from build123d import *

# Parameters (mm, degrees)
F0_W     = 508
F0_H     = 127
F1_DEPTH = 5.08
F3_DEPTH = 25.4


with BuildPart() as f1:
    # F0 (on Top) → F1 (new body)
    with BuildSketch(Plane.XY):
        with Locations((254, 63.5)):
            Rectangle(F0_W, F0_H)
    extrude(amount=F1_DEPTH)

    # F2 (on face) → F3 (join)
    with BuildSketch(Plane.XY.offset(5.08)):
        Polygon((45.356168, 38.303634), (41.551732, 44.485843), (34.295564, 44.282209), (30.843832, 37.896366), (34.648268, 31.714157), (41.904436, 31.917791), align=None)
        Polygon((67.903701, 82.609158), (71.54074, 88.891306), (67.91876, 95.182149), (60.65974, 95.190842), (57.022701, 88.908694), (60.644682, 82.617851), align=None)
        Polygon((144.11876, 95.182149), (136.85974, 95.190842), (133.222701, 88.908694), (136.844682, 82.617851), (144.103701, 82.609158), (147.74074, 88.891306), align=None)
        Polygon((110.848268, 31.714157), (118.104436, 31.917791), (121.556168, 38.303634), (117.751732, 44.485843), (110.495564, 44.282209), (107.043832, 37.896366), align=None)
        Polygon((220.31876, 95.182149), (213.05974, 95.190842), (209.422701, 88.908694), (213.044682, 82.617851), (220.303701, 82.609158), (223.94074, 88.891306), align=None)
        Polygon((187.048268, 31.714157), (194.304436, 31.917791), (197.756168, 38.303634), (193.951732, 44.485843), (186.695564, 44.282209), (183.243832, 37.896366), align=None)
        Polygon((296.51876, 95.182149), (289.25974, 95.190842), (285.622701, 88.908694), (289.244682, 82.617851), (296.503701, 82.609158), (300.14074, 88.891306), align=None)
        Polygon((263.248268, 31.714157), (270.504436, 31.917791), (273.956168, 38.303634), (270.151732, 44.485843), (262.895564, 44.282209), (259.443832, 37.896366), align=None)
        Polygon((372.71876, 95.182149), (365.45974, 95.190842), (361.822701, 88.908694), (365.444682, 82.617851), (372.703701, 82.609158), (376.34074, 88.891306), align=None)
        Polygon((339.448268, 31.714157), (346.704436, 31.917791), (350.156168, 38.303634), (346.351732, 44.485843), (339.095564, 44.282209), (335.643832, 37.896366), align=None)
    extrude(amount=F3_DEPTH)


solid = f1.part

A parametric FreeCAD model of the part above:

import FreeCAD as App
import Part
import Sketcher
Q = App.Units.Quantity

doc = App.newDocument("Part")
body = doc.addObject("PartDesign::Body", "Body")

# Sketch on XY plane
sketch1 = doc.addObject("Sketcher::SketchObject", "Sketch")
body.addObject(sketch1)
sketch1.AttachmentSupport = (doc.XY_Plane, [""])
sketch1.MapMode = "FlatFace"
sketch1.addGeometry(Part.LineSegment(App.Vector(0, 127, 0), App.Vector(0, 0, 0)), False)
sketch1.addGeometry(Part.LineSegment(App.Vector(0, 0, 0), App.Vector(508, 0, 0)), False)
sketch1.addGeometry(Part.LineSegment(App.Vector(508, 0, 0), App.Vector(508, 127, 0)), False)
sketch1.addGeometry(Part.LineSegment(App.Vector(508, 127, 0), App.Vector(0, 127, 0)), False)
sketch1.addConstraint(Sketcher.Constraint("Coincident", 0, 2, 1, 1))
sketch1.addConstraint(Sketcher.Constraint("Coincident", 1, 2, 2, 1))
sketch1.addConstraint(Sketcher.Constraint("Coincident", 2, 2, 3, 1))
sketch1.addConstraint(Sketcher.Constraint("Coincident", 3, 2, 0, 1))
sketch1.addConstraint(Sketcher.Constraint("Vertical", 0))
sketch1.addConstraint(Sketcher.Constraint("Horizontal", 1))
sketch1.addConstraint(Sketcher.Constraint("Vertical", 2))
sketch1.addConstraint(Sketcher.Constraint("Horizontal", 3))
sketch1.addConstraint(Sketcher.Constraint("Coincident", 0, 2, -1, 1))
sketch1.addConstraint(Sketcher.Constraint("DistanceX", 1, 1, 1, 2, Q("20 in")))
sketch1.addConstraint(Sketcher.Constraint("DistanceY", 0, 2, 0, 1, Q("5 in")))
pad1 = doc.addObject("PartDesign::Pad", "Pad")
body.addObject(pad1)
pad1.Profile = sketch1
pad1.Length = Q("0.2 in")

# Sketch on XY plane
sketch2 = doc.addObject("Sketcher::SketchObject", "Sketch001")
body.addObject(sketch2)
sketch2.AttachmentSupport = (doc.XY_Plane, [""])
sketch2.MapMode = "FlatFace"
sketch2.AttachmentOffset = App.Placement(App.Vector(0, 0, 0.2 * 25.4), App.Rotation())
sketch2.addGeometry(Part.LineSegment(App.Vector(45.356168, 38.303634, 0), App.Vector(41.551732, 44.485843, 0)), False)
sketch2.addGeometry(Part.LineSegment(App.Vector(41.551732, 44.485843, 0), App.Vector(34.295564, 44.282209, 0)), False)
sketch2.addGeometry(Part.LineSegment(App.Vector(34.295564, 44.282209, 0), App.Vector(30.843832, 37.896366, 0)), False)
sketch2.addGeometry(Part.LineSegment(App.Vector(30.843832, 37.896366, 0), App.Vector(34.648268, 31.714157, 0)), False)
sketch2.addGeometry(Part.LineSegment(App.Vector(34.648268, 31.714157, 0), App.Vector(41.904436, 31.917791, 0)), False)
sketch2.addGeometry(Part.LineSegment(App.Vector(41.904436, 31.917791, 0), App.Vector(45.356168, 38.303634, 0)), False)
sketch2.addGeometry(Part.LineSegment(App.Vector(67.903701, 82.609158, 0), App.Vector(71.54074, 88.891306, 0)), False)
sketch2.addGeometry(Part.LineSegment(App.Vector(71.54074, 88.891306, 0), App.Vector(67.91876, 95.182149, 0)), False)
sketch2.addGeometry(Part.LineSegment(App.Vector(67.91876, 95.182149, 0), App.Vector(60.65974, 95.190842, 0)), False)
sketch2.addGeometry(Part.LineSegment(App.Vector(60.65974, 95.190842, 0), App.Vector(57.022701, 88.908694, 0)), False)
sketch2.addGeometry(Part.LineSegment(App.Vector(57.022701, 88.908694, 0), App.Vector(60.644682, 82.617851, 0)), False)
sketch2.addGeometry(Part.LineSegment(App.Vector(60.644682, 82.617851, 0), App.Vector(67.903701, 82.609158, 0)), False)
sketch2.addGeometry(Part.LineSegment(App.Vector(144.11876, 95.182149, 0), App.Vector(136.85974, 95.190842, 0)), False)
sketch2.addGeometry(Part.LineSegment(App.Vector(136.85974, 95.190842, 0), App.Vector(133.222701, 88.908694, 0)), False)
sketch2.addGeometry(Part.LineSegment(App.Vector(133.222701, 88.908694, 0), App.Vector(136.844682, 82.617851, 0)), False)
sketch2.addGeometry(Part.LineSegment(App.Vector(136.844682, 82.617851, 0), App.Vector(144.103701, 82.609158, 0)), False)
sketch2.addGeometry(Part.LineSegment(App.Vector(144.103701, 82.609158, 0), App.Vector(147.74074, 88.891306, 0)), False)
sketch2.addGeometry(Part.LineSegment(App.Vector(147.74074, 88.891306, 0), App.Vector(144.11876, 95.182149, 0)), False)
sketch2.addGeometry(Part.LineSegment(App.Vector(110.848268, 31.714157, 0), App.Vector(118.104436, 31.917791, 0)), False)
sketch2.addGeometry(Part.LineSegment(App.Vector(118.104436, 31.917791, 0), App.Vector(121.556168, 38.303634, 0)), False)
sketch2.addGeometry(Part.LineSegment(App.Vector(121.556168, 38.303634, 0), App.Vector(117.751732, 44.485843, 0)), False)
sketch2.addGeometry(Part.LineSegment(App.Vector(117.751732, 44.485843, 0), App.Vector(110.495564, 44.282209, 0)), False)
sketch2.addGeometry(Part.LineSegment(App.Vector(110.495564, 44.282209, 0), App.Vector(107.043832, 37.896366, 0)), False)
sketch2.addGeometry(Part.LineSegment(App.Vector(107.043832, 37.896366, 0), App.Vector(110.848268, 31.714157, 0)), False)
sketch2.addGeometry(Part.LineSegment(App.Vector(220.31876, 95.182149, 0), App.Vector(213.05974, 95.190842, 0)), False)
sketch2.addGeometry(Part.LineSegment(App.Vector(213.05974, 95.190842, 0), App.Vector(209.422701, 88.908694, 0)), False)
sketch2.addGeometry(Part.LineSegment(App.Vector(209.422701, 88.908694, 0), App.Vector(213.044682, 82.617851, 0)), False)
sketch2.addGeometry(Part.LineSegment(App.Vector(213.044682, 82.617851, 0), App.Vector(220.303701, 82.609158, 0)), False)
sketch2.addGeometry(Part.LineSegment(App.Vector(220.303701, 82.609158, 0), App.Vector(223.94074, 88.891306, 0)), False)
sketch2.addGeometry(Part.LineSegment(App.Vector(223.94074, 88.891306, 0), App.Vector(220.31876, 95.182149, 0)), False)
sketch2.addGeometry(Part.LineSegment(App.Vector(187.048268, 31.714157, 0), App.Vector(194.304436, 31.917791, 0)), False)
sketch2.addGeometry(Part.LineSegment(App.Vector(194.304436, 31.917791, 0), App.Vector(197.756168, 38.303634, 0)), False)
sketch2.addGeometry(Part.LineSegment(App.Vector(197.756168, 38.303634, 0), App.Vector(193.951732, 44.485843, 0)), False)
sketch2.addGeometry(Part.LineSegment(App.Vector(193.951732, 44.485843, 0), App.Vector(186.695564, 44.282209, 0)), False)
sketch2.addGeometry(Part.LineSegment(App.Vector(186.695564, 44.282209, 0), App.Vector(183.243832, 37.896366, 0)), False)
sketch2.addGeometry(Part.LineSegment(App.Vector(183.243832, 37.896366, 0), App.Vector(187.048268, 31.714157, 0)), False)
sketch2.addGeometry(Part.LineSegment(App.Vector(296.51876, 95.182149, 0), App.Vector(289.25974, 95.190842, 0)), False)
sketch2.addGeometry(Part.LineSegment(App.Vector(289.25974, 95.190842, 0), App.Vector(285.622701, 88.908694, 0)), False)
sketch2.addGeometry(Part.LineSegment(App.Vector(285.622701, 88.908694, 0), App.Vector(289.244682, 82.617851, 0)), False)
sketch2.addGeometry(Part.LineSegment(App.Vector(289.244682, 82.617851, 0), App.Vector(296.503701, 82.609158, 0)), False)
sketch2.addGeometry(Part.LineSegment(App.Vector(296.503701, 82.609158, 0), App.Vector(300.14074, 88.891306, 0)), False)
sketch2.addGeometry(Part.LineSegment(App.Vector(300.14074, 88.891306, 0), App.Vector(296.51876, 95.182149, 0)), False)
sketch2.addGeometry(Part.LineSegment(App.Vector(263.248268, 31.714157, 0), App.Vector(270.504436, 31.917791, 0)), False)
sketch2.addGeometry(Part.LineSegment(App.Vector(270.504436, 31.917791, 0), App.Vector(273.956168, 38.303634, 0)), False)
sketch2.addGeometry(Part.LineSegment(App.Vector(273.956168, 38.303634, 0), App.Vector(270.151732, 44.485843, 0)), False)
sketch2.addGeometry(Part.LineSegment(App.Vector(270.151732, 44.485843, 0), App.Vector(262.895564, 44.282209, 0)), False)
sketch2.addGeometry(Part.LineSegment(App.Vector(262.895564, 44.282209, 0), App.Vector(259.443832, 37.896366, 0)), False)
sketch2.addGeometry(Part.LineSegment(App.Vector(259.443832, 37.896366, 0), App.Vector(263.248268, 31.714157, 0)), False)
sketch2.addGeometry(Part.LineSegment(App.Vector(372.71876, 95.182149, 0), App.Vector(365.45974, 95.190842, 0)), False)
sketch2.addGeometry(Part.LineSegment(App.Vector(365.45974, 95.190842, 0), App.Vector(361.822701, 88.908694, 0)), False)
sketch2.addGeometry(Part.LineSegment(App.Vector(361.822701, 88.908694, 0), App.Vector(365.444682, 82.617851, 0)), False)
sketch2.addGeometry(Part.LineSegment(App.Vector(365.444682, 82.617851, 0), App.Vector(372.703701, 82.609158, 0)), False)
sketch2.addGeometry(Part.LineSegment(App.Vector(372.703701, 82.609158, 0), App.Vector(376.34074, 88.891306, 0)), False)
sketch2.addGeometry(Part.LineSegment(App.Vector(376.34074, 88.891306, 0), App.Vector(372.71876, 95.182149, 0)), False)
sketch2.addGeometry(Part.LineSegment(App.Vector(339.448268, 31.714157, 0), App.Vector(346.704436, 31.917791, 0)), False)
sketch2.addGeometry(Part.LineSegment(App.Vector(346.704436, 31.917791, 0), App.Vector(350.156168, 38.303634, 0)), False)
sketch2.addGeometry(Part.LineSegment(App.Vector(350.156168, 38.303634, 0), App.Vector(346.351732, 44.485843, 0)), False)
sketch2.addGeometry(Part.LineSegment(App.Vector(346.351732, 44.485843, 0), App.Vector(339.095564, 44.282209, 0)), False)
sketch2.addGeometry(Part.LineSegment(App.Vector(339.095564, 44.282209, 0), App.Vector(335.643832, 37.896366, 0)), False)
sketch2.addGeometry(Part.LineSegment(App.Vector(335.643832, 37.896366, 0), App.Vector(339.448268, 31.714157, 0)), False)
sketch2.addConstraint(Sketcher.Constraint("Coincident", 0, 2, 1, 1))
sketch2.addConstraint(Sketcher.Constraint("Coincident", 1, 2, 2, 1))
sketch2.addConstraint(Sketcher.Constraint("Coincident", 2, 2, 3, 1))
sketch2.addConstraint(Sketcher.Constraint("Coincident", 3, 2, 4, 1))
sketch2.addConstraint(Sketcher.Constraint("Coincident", 4, 2, 5, 1))
sketch2.addConstraint(Sketcher.Constraint("Coincident", 5, 2, 0, 1))
sketch2.addConstraint(Sketcher.Constraint("Coincident", 6, 2, 7, 1))
sketch2.addConstraint(Sketcher.Constraint("Coincident", 7, 2, 8, 1))
sketch2.addConstraint(Sketcher.Constraint("Coincident", 8, 2, 9, 1))
sketch2.addConstraint(Sketcher.Constraint("Coincident", 9, 2, 10, 1))
sketch2.addConstraint(Sketcher.Constraint("Coincident", 10, 2, 11, 1))
sketch2.addConstraint(Sketcher.Constraint("Coincident", 11, 2, 6, 1))
sketch2.addConstraint(Sketcher.Constraint("Coincident", 12, 2, 13, 1))
sketch2.addConstraint(Sketcher.Constraint("Coincident", 13, 2, 14, 1))
sketch2.addConstraint(Sketcher.Constraint("Coincident", 14, 2, 15, 1))
sketch2.addConstraint(Sketcher.Constraint("Coincident", 15, 2, 16, 1))
sketch2.addConstraint(Sketcher.Constraint("Coincident", 16, 2, 17, 1))
sketch2.addConstraint(Sketcher.Constraint("Coincident", 17, 2, 12, 1))
sketch2.addConstraint(Sketcher.Constraint("Coincident", 18, 2, 19, 1))
sketch2.addConstraint(Sketcher.Constraint("Coincident", 19, 2, 20, 1))
sketch2.addConstraint(Sketcher.Constraint("Coincident", 20, 2, 21, 1))
sketch2.addConstraint(Sketcher.Constraint("Coincident", 21, 2, 22, 1))
sketch2.addConstraint(Sketcher.Constraint("Coincident", 22, 2, 23, 1))
sketch2.addConstraint(Sketcher.Constraint("Coincident", 23, 2, 18, 1))
sketch2.addConstraint(Sketcher.Constraint("Coincident", 24, 2, 25, 1))
sketch2.addConstraint(Sketcher.Constraint("Coincident", 25, 2, 26, 1))
sketch2.addConstraint(Sketcher.Constraint("Coincident", 26, 2, 27, 1))
sketch2.addConstraint(Sketcher.Constraint("Coincident", 27, 2, 28, 1))
sketch2.addConstraint(Sketcher.Constraint("Coincident", 28, 2, 29, 1))
sketch2.addConstraint(Sketcher.Constraint("Coincident", 29, 2, 24, 1))
sketch2.addConstraint(Sketcher.Constraint("Coincident", 30, 2, 31, 1))
sketch2.addConstraint(Sketcher.Constraint("Coincident", 31, 2, 32, 1))
sketch2.addConstraint(Sketcher.Constraint("Coincident", 32, 2, 33, 1))
sketch2.addConstraint(Sketcher.Constraint("Coincident", 33, 2, 34, 1))
sketch2.addConstraint(Sketcher.Constraint("Coincident", 34, 2, 35, 1))
sketch2.addConstraint(Sketcher.Constraint("Coincident", 35, 2, 30, 1))
sketch2.addConstraint(Sketcher.Constraint("Coincident", 36, 2, 37, 1))
sketch2.addConstraint(Sketcher.Constraint("Coincident", 37, 2, 38, 1))
sketch2.addConstraint(Sketcher.Constraint("Coincident", 38, 2, 39, 1))
sketch2.addConstraint(Sketcher.Constraint("Coincident", 39, 2, 40, 1))
sketch2.addConstraint(Sketcher.Constraint("Coincident", 40, 2, 41, 1))
sketch2.addConstraint(Sketcher.Constraint("Coincident", 41, 2, 36, 1))
sketch2.addConstraint(Sketcher.Constraint("Coincident", 42, 2, 43, 1))
sketch2.addConstraint(Sketcher.Constraint("Coincident", 43, 2, 44, 1))
sketch2.addConstraint(Sketcher.Constraint("Coincident", 44, 2, 45, 1))
sketch2.addConstraint(Sketcher.Constraint("Coincident", 45, 2, 46, 1))
sketch2.addConstraint(Sketcher.Constraint("Coincident", 46, 2, 47, 1))
sketch2.addConstraint(Sketcher.Constraint("Coincident", 47, 2, 42, 1))
sketch2.addConstraint(Sketcher.Constraint("Coincident", 48, 2, 49, 1))
sketch2.addConstraint(Sketcher.Constraint("Coincident", 49, 2, 50, 1))
sketch2.addConstraint(Sketcher.Constraint("Coincident", 50, 2, 51, 1))
sketch2.addConstraint(Sketcher.Constraint("Coincident", 51, 2, 52, 1))
sketch2.addConstraint(Sketcher.Constraint("Coincident", 52, 2, 53, 1))
sketch2.addConstraint(Sketcher.Constraint("Coincident", 53, 2, 48, 1))
sketch2.addConstraint(Sketcher.Constraint("Coincident", 54, 2, 55, 1))
sketch2.addConstraint(Sketcher.Constraint("Coincident", 55, 2, 56, 1))
sketch2.addConstraint(Sketcher.Constraint("Coincident", 56, 2, 57, 1))
sketch2.addConstraint(Sketcher.Constraint("Coincident", 57, 2, 58, 1))
sketch2.addConstraint(Sketcher.Constraint("Coincident", 58, 2, 59, 1))
sketch2.addConstraint(Sketcher.Constraint("Coincident", 59, 2, 54, 1))
sketch2.addConstraint(Sketcher.Constraint("Parallel", 0, 3))
sketch2.addConstraint(Sketcher.Constraint("Parallel", 1, 4))
sketch2.addConstraint(Sketcher.Constraint("Parallel", 2, 5))
sketch2.addConstraint(Sketcher.Constraint("Parallel", 6, 9))
sketch2.addConstraint(Sketcher.Constraint("Parallel", 7, 10))
sketch2.addConstraint(Sketcher.Constraint("Parallel", 8, 11))
sketch2.addConstraint(Sketcher.Constraint("Parallel", 11, 12))
sketch2.addConstraint(Sketcher.Constraint("Parallel", 9, 13))
sketch2.addConstraint(Sketcher.Constraint("Parallel", 10, 14))
sketch2.addConstraint(Sketcher.Constraint("Parallel", 12, 15))
sketch2.addConstraint(Sketcher.Constraint("Parallel", 13, 16))
sketch2.addConstraint(Sketcher.Constraint("Parallel", 14, 17))
sketch2.addConstraint(Sketcher.Constraint("Parallel", 4, 18))
sketch2.addConstraint(Sketcher.Constraint("Parallel", 5, 19))
sketch2.addConstraint(Sketcher.Constraint("Parallel", 3, 20))
sketch2.addConstraint(Sketcher.Constraint("Parallel", 18, 21))
sketch2.addConstraint(Sketcher.Constraint("Parallel", 19, 22))
sketch2.addConstraint(Sketcher.Constraint("Parallel", 20, 23))
sketch2.addConstraint(Sketcher.Constraint("Parallel", 15, 24))
sketch2.addConstraint(Sketcher.Constraint("Parallel", 16, 25))
sketch2.addConstraint(Sketcher.Constraint("Parallel", 17, 26))
sketch2.addConstraint(Sketcher.Constraint("Parallel", 24, 27))
sketch2.addConstraint(Sketcher.Constraint("Parallel", 25, 28))
sketch2.addConstraint(Sketcher.Constraint("Parallel", 26, 29))
sketch2.addConstraint(Sketcher.Constraint("Parallel", 21, 30))
sketch2.addConstraint(Sketcher.Constraint("Parallel", 22, 31))
sketch2.addConstraint(Sketcher.Constraint("Parallel", 23, 32))
sketch2.addConstraint(Sketcher.Constraint("Parallel", 30, 33))
sketch2.addConstraint(Sketcher.Constraint("Parallel", 31, 34))
sketch2.addConstraint(Sketcher.Constraint("Parallel", 32, 35))
sketch2.addConstraint(Sketcher.Constraint("Parallel", 27, 36))
sketch2.addConstraint(Sketcher.Constraint("Parallel", 28, 37))
sketch2.addConstraint(Sketcher.Constraint("Parallel", 29, 38))
sketch2.addConstraint(Sketcher.Constraint("Parallel", 36, 39))
sketch2.addConstraint(Sketcher.Constraint("Parallel", 37, 40))
sketch2.addConstraint(Sketcher.Constraint("Parallel", 38, 41))
sketch2.addConstraint(Sketcher.Constraint("Parallel", 33, 42))
sketch2.addConstraint(Sketcher.Constraint("Parallel", 34, 43))
sketch2.addConstraint(Sketcher.Constraint("Parallel", 35, 44))
sketch2.addConstraint(Sketcher.Constraint("Parallel", 42, 45))
sketch2.addConstraint(Sketcher.Constraint("Parallel", 43, 46))
sketch2.addConstraint(Sketcher.Constraint("Parallel", 44, 47))
sketch2.addConstraint(Sketcher.Constraint("Parallel", 39, 48))
sketch2.addConstraint(Sketcher.Constraint("Parallel", 40, 49))
sketch2.addConstraint(Sketcher.Constraint("Parallel", 41, 50))
sketch2.addConstraint(Sketcher.Constraint("Parallel", 48, 51))
sketch2.addConstraint(Sketcher.Constraint("Parallel", 49, 52))
sketch2.addConstraint(Sketcher.Constraint("Parallel", 50, 53))
sketch2.addConstraint(Sketcher.Constraint("Parallel", 45, 54))
sketch2.addConstraint(Sketcher.Constraint("Parallel", 46, 55))
sketch2.addConstraint(Sketcher.Constraint("Parallel", 47, 56))
sketch2.addConstraint(Sketcher.Constraint("Parallel", 54, 57))
sketch2.addConstraint(Sketcher.Constraint("Parallel", 55, 58))
sketch2.addConstraint(Sketcher.Constraint("Parallel", 56, 59))
sketch2.addConstraint(Sketcher.Constraint("Horizontal", 8, 2, 12, 2))
sketch2.addConstraint(Sketcher.Constraint("Horizontal", 9, 2, 13, 2))
sketch2.addConstraint(Sketcher.Constraint("Horizontal", 10, 2, 14, 2))
sketch2.addConstraint(Sketcher.Constraint("Horizontal", 6, 2, 16, 2))
sketch2.addConstraint(Sketcher.Constraint("Horizontal", 4, 2, 18, 2))
sketch2.addConstraint(Sketcher.Constraint("Horizontal", 5, 2, 19, 2))
sketch2.addConstraint(Sketcher.Constraint("Horizontal", 0, 2, 20, 2))
sketch2.addConstraint(Sketcher.Constraint("Horizontal", 1, 2, 21, 2))
sketch2.addConstraint(Sketcher.Constraint("Horizontal", 2, 2, 22, 2))
sketch2.addConstraint(Sketcher.Constraint("Horizontal", 12, 2, 24, 2))
sketch2.addConstraint(Sketcher.Constraint("Horizontal", 13, 2, 25, 2))
sketch2.addConstraint(Sketcher.Constraint("Horizontal", 14, 2, 26, 2))
sketch2.addConstraint(Sketcher.Constraint("Horizontal", 16, 2, 28, 2))
sketch2.addConstraint(Sketcher.Constraint("Horizontal", 18, 2, 30, 2))
sketch2.addConstraint(Sketcher.Constraint("Horizontal", 19, 2, 31, 2))
sketch2.addConstraint(Sketcher.Constraint("Horizontal", 20, 2, 32, 2))
sketch2.addConstraint(Sketcher.Constraint("Horizontal", 21, 2, 33, 2))
sketch2.addConstraint(Sketcher.Constraint("Horizontal", 22, 2, 34, 2))
sketch2.addConstraint(Sketcher.Constraint("Horizontal", 24, 2, 36, 2))
sketch2.addConstraint(Sketcher.Constraint("Horizontal", 25, 2, 37, 2))
sketch2.addConstraint(Sketcher.Constraint("Horizontal", 26, 2, 38, 2))
sketch2.addConstraint(Sketcher.Constraint("Horizontal", 28, 2, 40, 2))
sketch2.addConstraint(Sketcher.Constraint("Horizontal", 30, 2, 42, 2))
sketch2.addConstraint(Sketcher.Constraint("Horizontal", 31, 2, 43, 2))
sketch2.addConstraint(Sketcher.Constraint("Horizontal", 32, 2, 44, 2))
sketch2.addConstraint(Sketcher.Constraint("Horizontal", 33, 2, 45, 2))
sketch2.addConstraint(Sketcher.Constraint("Horizontal", 34, 2, 46, 2))
sketch2.addConstraint(Sketcher.Constraint("Horizontal", 36, 2, 48, 2))
sketch2.addConstraint(Sketcher.Constraint("Horizontal", 37, 2, 49, 2))
sketch2.addConstraint(Sketcher.Constraint("Horizontal", 38, 2, 50, 2))
sketch2.addConstraint(Sketcher.Constraint("Horizontal", 40, 2, 52, 2))
sketch2.addConstraint(Sketcher.Constraint("Horizontal", 42, 2, 54, 2))
sketch2.addConstraint(Sketcher.Constraint("Horizontal", 43, 2, 55, 2))
sketch2.addConstraint(Sketcher.Constraint("Horizontal", 44, 2, 56, 2))
sketch2.addConstraint(Sketcher.Constraint("Horizontal", 45, 2, 57, 2))
sketch2.addConstraint(Sketcher.Constraint("Horizontal", 46, 2, 58, 2))
sketch2.addConstraint(Sketcher.Constraint("Equal", 0, 1))
sketch2.addConstraint(Sketcher.Constraint("Equal", 1, 2))
sketch2.addConstraint(Sketcher.Constraint("Equal", 2, 3))
sketch2.addConstraint(Sketcher.Constraint("Equal", 5, 6))
sketch2.addConstraint(Sketcher.Constraint("Equal", 6, 7))
sketch2.addConstraint(Sketcher.Constraint("Equal", 7, 8))
sketch2.addConstraint(Sketcher.Constraint("Equal", 8, 9))
sketch2.addConstraint(Sketcher.Constraint("Equal", 11, 12))
sketch2.addConstraint(Sketcher.Constraint("Equal", 23, 24))
sketch2.addConstraint(Sketcher.Constraint("Equal", 35, 36))
sketch2.addConstraint(Sketcher.Constraint("Equal", 47, 48))
sketch2.addConstraint(Sketcher.Constraint("DistanceX", 8, 2, 12, 2, Q("3 in")))
sketch2.addConstraint(Sketcher.Constraint("DistanceX", 12, 2, 24, 2, Q("3 in")))
sketch2.addConstraint(Sketcher.Constraint("DistanceX", 24, 2, 36, 2, Q("3 in")))
sketch2.addConstraint(Sketcher.Constraint("DistanceX", 36, 2, 48, 2, Q("3 in")))
sketch2.addConstraint(Sketcher.Constraint("DistanceX", -1, 1, 9, 2, Q("57.022701 mm")))
sketch2.addConstraint(Sketcher.Constraint("DistanceX", -1, 1, 11, 2, Q("67.903701 mm")))
sketch2.addConstraint(Sketcher.Constraint("DistanceX", 2, 2, 0, 2, Q("10.7079 mm")))
sketch2.addConstraint(Sketcher.Constraint("DistanceY", 0, 2, 8, 2, Q("50.704999 mm")))
sketch2.addConstraint(Sketcher.Constraint("DistanceY", -1, 1, 1, 2, Q("44.282209 mm")))
sketch2.addConstraint(Sketcher.Constraint("DistanceX", -1, 1, 2, 2, Q("30.843832 mm")))
sketch2.addConstraint(Sketcher.Constraint("DistanceX", -1, 1, 3, 2, Q("34.648268 mm")))
sketch2.addConstraint(Sketcher.Constraint("DistanceY", -1, 1, 4, 2, Q("31.917791 mm")))
sketch2.addConstraint(Sketcher.Constraint("DistanceX", -1, 1, 6, 2, Q("71.54074 mm")))
sketch2.addConstraint(Sketcher.Constraint("DistanceX", -1, 1, 7, 2, Q("67.91876 mm")))
sketch2.addConstraint(Sketcher.Constraint("DistanceY", -1, 1, 7, 2, Q("95.182149 mm")))
sketch2.addConstraint(Sketcher.Constraint("DistanceX", -1, 1, 19, 2, Q("121.556168 mm")))
sketch2.addConstraint(Sketcher.Constraint("DistanceX", -1, 1, 31, 2, Q("197.756168 mm")))
sketch2.addConstraint(Sketcher.Constraint("DistanceX", -1, 1, 43, 2, Q("273.956168 mm")))
sketch2.addConstraint(Sketcher.Constraint("DistanceX", -1, 1, 55, 2, Q("350.156168 mm")))
pad2 = doc.addObject("PartDesign::Pad", "Pad001")
body.addObject(pad2)
pad2.Profile = sketch2
pad2.Length = Q("1 in")

doc.recompute()
